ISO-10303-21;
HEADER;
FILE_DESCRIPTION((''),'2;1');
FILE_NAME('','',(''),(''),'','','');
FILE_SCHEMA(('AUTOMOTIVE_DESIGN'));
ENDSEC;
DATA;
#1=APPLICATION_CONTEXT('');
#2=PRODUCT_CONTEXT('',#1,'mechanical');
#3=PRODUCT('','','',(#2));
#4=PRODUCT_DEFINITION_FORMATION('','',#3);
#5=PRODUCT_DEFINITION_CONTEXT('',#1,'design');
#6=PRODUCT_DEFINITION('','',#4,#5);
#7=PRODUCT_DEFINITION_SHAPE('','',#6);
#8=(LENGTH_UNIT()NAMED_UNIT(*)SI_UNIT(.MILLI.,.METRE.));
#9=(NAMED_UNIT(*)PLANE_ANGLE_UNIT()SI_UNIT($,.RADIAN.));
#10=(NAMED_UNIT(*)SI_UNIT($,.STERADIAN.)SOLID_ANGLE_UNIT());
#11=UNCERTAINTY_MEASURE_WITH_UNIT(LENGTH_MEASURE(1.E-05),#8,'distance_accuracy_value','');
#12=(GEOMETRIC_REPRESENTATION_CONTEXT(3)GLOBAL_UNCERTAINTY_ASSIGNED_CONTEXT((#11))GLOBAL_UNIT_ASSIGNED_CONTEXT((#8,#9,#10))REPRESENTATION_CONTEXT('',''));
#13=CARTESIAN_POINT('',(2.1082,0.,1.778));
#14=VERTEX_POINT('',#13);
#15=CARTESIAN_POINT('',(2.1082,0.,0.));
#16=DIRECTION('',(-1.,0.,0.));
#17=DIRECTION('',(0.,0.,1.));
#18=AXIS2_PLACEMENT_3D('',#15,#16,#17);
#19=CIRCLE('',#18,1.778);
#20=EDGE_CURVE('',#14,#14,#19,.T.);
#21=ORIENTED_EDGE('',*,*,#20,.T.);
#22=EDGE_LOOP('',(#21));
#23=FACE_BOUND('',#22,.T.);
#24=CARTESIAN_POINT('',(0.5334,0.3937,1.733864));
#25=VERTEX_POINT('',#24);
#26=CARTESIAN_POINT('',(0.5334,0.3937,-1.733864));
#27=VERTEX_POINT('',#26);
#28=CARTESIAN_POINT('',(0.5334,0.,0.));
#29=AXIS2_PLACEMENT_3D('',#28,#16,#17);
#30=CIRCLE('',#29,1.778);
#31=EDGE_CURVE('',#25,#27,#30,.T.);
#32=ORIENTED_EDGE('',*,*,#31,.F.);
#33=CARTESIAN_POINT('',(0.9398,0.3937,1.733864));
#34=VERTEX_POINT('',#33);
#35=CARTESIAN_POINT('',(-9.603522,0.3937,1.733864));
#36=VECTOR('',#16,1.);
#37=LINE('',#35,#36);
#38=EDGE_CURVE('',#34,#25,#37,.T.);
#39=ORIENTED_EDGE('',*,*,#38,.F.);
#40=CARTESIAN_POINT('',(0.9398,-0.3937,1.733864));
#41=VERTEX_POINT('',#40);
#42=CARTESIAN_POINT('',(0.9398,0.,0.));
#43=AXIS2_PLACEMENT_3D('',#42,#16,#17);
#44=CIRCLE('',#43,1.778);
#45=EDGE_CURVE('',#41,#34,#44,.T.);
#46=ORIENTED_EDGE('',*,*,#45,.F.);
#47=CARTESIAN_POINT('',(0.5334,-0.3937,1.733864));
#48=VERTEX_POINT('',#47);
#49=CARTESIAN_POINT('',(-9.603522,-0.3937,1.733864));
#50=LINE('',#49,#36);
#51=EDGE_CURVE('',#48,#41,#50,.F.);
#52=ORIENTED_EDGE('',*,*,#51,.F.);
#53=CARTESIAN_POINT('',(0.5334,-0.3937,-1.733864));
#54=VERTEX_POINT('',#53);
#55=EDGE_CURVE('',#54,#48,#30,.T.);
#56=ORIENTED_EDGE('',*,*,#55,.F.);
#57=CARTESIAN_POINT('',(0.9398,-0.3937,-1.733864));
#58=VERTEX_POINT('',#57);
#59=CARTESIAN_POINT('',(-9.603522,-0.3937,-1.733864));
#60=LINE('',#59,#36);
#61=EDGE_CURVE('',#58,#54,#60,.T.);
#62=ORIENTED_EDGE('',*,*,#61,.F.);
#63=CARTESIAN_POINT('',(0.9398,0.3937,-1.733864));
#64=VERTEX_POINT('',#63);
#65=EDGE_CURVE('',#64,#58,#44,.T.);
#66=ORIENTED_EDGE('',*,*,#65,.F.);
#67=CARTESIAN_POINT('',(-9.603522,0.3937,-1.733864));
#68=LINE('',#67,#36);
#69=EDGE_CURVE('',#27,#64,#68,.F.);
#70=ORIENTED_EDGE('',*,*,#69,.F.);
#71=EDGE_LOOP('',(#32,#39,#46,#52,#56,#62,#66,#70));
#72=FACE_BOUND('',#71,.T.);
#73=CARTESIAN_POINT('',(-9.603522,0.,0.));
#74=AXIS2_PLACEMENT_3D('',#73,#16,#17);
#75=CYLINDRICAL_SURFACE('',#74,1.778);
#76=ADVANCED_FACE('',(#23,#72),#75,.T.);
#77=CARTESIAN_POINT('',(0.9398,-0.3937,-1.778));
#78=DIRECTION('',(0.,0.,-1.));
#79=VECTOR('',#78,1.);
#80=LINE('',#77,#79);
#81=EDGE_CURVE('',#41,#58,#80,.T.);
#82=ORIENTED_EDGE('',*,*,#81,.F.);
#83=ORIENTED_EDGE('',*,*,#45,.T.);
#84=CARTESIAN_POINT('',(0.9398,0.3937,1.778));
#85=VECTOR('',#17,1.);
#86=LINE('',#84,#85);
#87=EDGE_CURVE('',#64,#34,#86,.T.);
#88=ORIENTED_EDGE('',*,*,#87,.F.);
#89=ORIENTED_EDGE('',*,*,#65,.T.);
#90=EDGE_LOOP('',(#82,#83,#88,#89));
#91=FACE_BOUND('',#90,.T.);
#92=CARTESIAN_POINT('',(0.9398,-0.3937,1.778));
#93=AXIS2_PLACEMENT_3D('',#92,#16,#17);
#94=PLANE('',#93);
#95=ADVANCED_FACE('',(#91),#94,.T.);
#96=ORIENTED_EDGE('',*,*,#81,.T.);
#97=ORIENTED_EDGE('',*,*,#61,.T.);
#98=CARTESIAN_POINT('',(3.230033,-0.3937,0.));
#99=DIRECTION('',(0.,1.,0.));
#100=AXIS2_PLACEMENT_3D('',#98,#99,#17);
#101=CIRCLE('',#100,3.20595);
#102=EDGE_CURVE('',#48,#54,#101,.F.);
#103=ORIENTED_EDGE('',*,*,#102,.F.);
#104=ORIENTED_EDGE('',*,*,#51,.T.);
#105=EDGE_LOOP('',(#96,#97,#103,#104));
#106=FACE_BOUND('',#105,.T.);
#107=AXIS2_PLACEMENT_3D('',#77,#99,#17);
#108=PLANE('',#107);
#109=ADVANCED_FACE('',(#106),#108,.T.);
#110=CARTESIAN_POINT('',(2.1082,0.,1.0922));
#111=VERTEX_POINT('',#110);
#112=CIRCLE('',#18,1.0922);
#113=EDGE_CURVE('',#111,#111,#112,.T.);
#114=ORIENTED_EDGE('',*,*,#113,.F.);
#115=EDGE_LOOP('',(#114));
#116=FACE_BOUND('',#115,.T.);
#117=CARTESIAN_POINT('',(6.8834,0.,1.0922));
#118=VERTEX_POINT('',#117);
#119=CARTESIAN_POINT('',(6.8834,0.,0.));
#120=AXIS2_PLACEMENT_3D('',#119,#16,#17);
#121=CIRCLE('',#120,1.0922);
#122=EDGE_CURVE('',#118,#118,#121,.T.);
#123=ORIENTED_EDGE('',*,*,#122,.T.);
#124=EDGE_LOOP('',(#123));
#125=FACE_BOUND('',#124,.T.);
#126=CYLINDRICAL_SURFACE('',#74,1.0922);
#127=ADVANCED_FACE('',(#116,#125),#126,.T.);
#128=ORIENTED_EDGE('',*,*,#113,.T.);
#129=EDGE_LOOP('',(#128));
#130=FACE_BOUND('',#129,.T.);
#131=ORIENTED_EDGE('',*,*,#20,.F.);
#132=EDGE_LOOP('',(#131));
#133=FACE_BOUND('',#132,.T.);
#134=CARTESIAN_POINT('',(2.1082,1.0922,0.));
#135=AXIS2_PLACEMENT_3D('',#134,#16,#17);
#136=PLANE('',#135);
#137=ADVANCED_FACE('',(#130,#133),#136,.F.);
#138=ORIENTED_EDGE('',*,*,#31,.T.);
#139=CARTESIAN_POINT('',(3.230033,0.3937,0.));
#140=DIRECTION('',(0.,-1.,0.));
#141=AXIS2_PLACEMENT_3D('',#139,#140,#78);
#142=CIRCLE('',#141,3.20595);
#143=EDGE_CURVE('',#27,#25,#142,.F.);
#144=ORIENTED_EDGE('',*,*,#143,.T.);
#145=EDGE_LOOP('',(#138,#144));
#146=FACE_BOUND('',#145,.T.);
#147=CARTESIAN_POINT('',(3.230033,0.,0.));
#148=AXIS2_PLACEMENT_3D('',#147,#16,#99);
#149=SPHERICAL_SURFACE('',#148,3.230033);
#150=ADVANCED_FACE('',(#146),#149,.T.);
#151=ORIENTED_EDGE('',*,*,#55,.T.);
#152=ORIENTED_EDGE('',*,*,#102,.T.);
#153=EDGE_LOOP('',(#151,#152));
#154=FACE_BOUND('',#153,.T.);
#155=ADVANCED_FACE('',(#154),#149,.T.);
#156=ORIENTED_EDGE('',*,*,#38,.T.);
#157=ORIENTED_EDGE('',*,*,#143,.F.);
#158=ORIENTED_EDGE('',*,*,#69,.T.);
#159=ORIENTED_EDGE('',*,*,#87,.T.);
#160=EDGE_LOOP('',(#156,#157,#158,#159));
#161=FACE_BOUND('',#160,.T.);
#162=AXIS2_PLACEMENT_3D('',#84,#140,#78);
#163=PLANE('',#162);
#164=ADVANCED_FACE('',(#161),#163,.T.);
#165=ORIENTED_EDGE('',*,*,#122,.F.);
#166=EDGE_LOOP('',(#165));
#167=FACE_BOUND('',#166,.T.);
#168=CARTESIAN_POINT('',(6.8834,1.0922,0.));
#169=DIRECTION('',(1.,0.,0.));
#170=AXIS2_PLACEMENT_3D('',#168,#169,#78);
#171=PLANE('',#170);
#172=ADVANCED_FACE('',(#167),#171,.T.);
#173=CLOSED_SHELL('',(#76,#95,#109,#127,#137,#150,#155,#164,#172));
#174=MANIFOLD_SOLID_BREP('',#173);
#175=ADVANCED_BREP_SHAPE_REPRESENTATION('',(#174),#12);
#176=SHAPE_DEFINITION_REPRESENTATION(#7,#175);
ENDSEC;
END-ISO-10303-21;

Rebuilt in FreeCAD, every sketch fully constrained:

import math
import FreeCAD as App
import Part
import Sketcher

V = App.Vector
Q = App.Units.Quantity


def add_polygon(sketch, points):
    """Adds a closed chain of lines whose ends are joined by coincident constraints."""
    first, n = sketch.GeometryCount, len(points)
    for a, b in zip(points, points[1:] + points[:1]):
        sketch.addGeometry(Part.LineSegment(App.Vector(*a, 0), App.Vector(*b, 0)), False)
    for i in range(n):
        sketch.addConstraint(Sketcher.Constraint("Coincident", first + i, 2, first + (i + 1) % n, 1))

doc = App.newDocument("Part")
body = doc.addObject("PartDesign::Body", "Body")

# Sketch on XY plane
sketch1 = doc.addObject("Sketcher::SketchObject", "Sketch")
body.addObject(sketch1)
sketch1.AttachmentSupport = (doc.XY_Plane, [""])
sketch1.MapMode = "FlatFace"
sketch1.addGeometry(Part.LineSegment(V(2.1, 1.1, 0), V(2.1, 1.8, 0)), False)
sketch1.addGeometry(Part.LineSegment(V(2.1, 1.8, 0), V(0.5, 1.8, 0)), False)
sketch1.addGeometry(Part.ArcOfCircle(Part.Circle(V(3.2, 0, 0), V(0, 0, 1), 3.2), math.radians(147), math.radians(180)), False)
sketch1.addGeometry(Part.LineSegment(V(0, 0, 0), V(6.9, 0, 0)), False)
sketch1.addGeometry(Part.LineSegment(V(6.9, 0, 0), V(6.9, 1.1, 0)), False)
sketch1.addGeometry(Part.LineSegment(V(6.9, 1.1, 0), V(2.1, 1.1, 0)), False)
sketch1.addConstraint(Sketcher.Constraint("Coincident", 0, 2, 1, 1))
sketch1.addConstraint(Sketcher.Constraint("Coincident", 1, 2, 2, 1))
sketch1.addConstraint(Sketcher.Constraint("Coincident", 2, 2, 3, 1))
sketch1.addConstraint(Sketcher.Constraint("Coincident", 3, 2, 4, 1))
sketch1.addConstraint(Sketcher.Constraint("Coincident", 4, 2, 5, 1))
sketch1.addConstraint(Sketcher.Constraint("Coincident", 5, 2, 0, 1))
sketch1.addConstraint(Sketcher.Constraint("Vertical", 0))
sketch1.addConstraint(Sketcher.Constraint("Horizontal", 1))
sketch1.addConstraint(Sketcher.Constraint("Horizontal", 3))
sketch1.addConstraint(Sketcher.Constraint("Vertical", 4))
sketch1.addConstraint(Sketcher.Constraint("Horizontal", 5))
sketch1.addConstraint(Sketcher.Constraint("Coincident", 2, 2, -1, 1))
sketch1.addConstraint(Sketcher.Constraint("PointOnObject", 2, 3, -1))
sketch1.addConstraint(Sketcher.Constraint("DistanceX", 1, 2, 1, 1, Q("0.062 in")))
sketch1.addConstraint(Sketcher.Constraint("DistanceX", 3, 1, 3, 2, Q("0.271 in")))
sketch1.addConstraint(Sketcher.Constraint("DistanceX", 5, 2, 5, 1, Q("0.188 in")))
sketch1.addConstraint(Sketcher.Constraint("DistanceY", 0, 1, 0, 2, Q("0.027 in")))
sketch1.addConstraint(Sketcher.Constraint("DistanceY", 4, 1, 4, 2, Q("0.043 in")))
revolution = doc.addObject("PartDesign::Revolution", "Revolution")
body.addObject(revolution)
revolution.Profile = sketch1
revolution.ReferenceAxis = (sketch1, ["H_Axis"])
revolution.Angle = 360

# Sketch on YZ plane
sketch2 = doc.addObject("Sketcher::SketchObject", "Sketch001")
body.addObject(sketch2)
sketch2.AttachmentSupport = (doc.YZ_Plane, [""])
sketch2.MapMode = "FlatFace"
add_polygon(sketch2, [(0.4, 1.8), (-0.4, 1.8), (-0.4, -1.8), (0.4, -1.8)])  # lines 0-3
sketch2.addConstraint(Sketcher.Constraint("Horizontal", 0))
sketch2.addConstraint(Sketcher.Constraint("Vertical", 1))
sketch2.addConstraint(Sketcher.Constraint("Horizontal", 2))
sketch2.addConstraint(Sketcher.Constraint("Vertical", 3))
sketch2.addConstraint(Sketcher.Constraint("Symmetric", 0, 2, 2, 2, -1, 1))
sketch2.addConstraint(Sketcher.Constraint("DistanceY", 1, 2, 1, 1, Q("0.14 in")))
sketch2.addConstraint(Sketcher.Constraint("DistanceX", 0, 2, 0, 1, Q("0.031 in")))
pocket1 = doc.addObject("PartDesign::Pocket", "Pocket")
body.addObject(pocket1)
pocket1.Profile = sketch2
pocket1.Length = Q("0.037 in")
pocket1.Reversed = True

doc.recompute()
